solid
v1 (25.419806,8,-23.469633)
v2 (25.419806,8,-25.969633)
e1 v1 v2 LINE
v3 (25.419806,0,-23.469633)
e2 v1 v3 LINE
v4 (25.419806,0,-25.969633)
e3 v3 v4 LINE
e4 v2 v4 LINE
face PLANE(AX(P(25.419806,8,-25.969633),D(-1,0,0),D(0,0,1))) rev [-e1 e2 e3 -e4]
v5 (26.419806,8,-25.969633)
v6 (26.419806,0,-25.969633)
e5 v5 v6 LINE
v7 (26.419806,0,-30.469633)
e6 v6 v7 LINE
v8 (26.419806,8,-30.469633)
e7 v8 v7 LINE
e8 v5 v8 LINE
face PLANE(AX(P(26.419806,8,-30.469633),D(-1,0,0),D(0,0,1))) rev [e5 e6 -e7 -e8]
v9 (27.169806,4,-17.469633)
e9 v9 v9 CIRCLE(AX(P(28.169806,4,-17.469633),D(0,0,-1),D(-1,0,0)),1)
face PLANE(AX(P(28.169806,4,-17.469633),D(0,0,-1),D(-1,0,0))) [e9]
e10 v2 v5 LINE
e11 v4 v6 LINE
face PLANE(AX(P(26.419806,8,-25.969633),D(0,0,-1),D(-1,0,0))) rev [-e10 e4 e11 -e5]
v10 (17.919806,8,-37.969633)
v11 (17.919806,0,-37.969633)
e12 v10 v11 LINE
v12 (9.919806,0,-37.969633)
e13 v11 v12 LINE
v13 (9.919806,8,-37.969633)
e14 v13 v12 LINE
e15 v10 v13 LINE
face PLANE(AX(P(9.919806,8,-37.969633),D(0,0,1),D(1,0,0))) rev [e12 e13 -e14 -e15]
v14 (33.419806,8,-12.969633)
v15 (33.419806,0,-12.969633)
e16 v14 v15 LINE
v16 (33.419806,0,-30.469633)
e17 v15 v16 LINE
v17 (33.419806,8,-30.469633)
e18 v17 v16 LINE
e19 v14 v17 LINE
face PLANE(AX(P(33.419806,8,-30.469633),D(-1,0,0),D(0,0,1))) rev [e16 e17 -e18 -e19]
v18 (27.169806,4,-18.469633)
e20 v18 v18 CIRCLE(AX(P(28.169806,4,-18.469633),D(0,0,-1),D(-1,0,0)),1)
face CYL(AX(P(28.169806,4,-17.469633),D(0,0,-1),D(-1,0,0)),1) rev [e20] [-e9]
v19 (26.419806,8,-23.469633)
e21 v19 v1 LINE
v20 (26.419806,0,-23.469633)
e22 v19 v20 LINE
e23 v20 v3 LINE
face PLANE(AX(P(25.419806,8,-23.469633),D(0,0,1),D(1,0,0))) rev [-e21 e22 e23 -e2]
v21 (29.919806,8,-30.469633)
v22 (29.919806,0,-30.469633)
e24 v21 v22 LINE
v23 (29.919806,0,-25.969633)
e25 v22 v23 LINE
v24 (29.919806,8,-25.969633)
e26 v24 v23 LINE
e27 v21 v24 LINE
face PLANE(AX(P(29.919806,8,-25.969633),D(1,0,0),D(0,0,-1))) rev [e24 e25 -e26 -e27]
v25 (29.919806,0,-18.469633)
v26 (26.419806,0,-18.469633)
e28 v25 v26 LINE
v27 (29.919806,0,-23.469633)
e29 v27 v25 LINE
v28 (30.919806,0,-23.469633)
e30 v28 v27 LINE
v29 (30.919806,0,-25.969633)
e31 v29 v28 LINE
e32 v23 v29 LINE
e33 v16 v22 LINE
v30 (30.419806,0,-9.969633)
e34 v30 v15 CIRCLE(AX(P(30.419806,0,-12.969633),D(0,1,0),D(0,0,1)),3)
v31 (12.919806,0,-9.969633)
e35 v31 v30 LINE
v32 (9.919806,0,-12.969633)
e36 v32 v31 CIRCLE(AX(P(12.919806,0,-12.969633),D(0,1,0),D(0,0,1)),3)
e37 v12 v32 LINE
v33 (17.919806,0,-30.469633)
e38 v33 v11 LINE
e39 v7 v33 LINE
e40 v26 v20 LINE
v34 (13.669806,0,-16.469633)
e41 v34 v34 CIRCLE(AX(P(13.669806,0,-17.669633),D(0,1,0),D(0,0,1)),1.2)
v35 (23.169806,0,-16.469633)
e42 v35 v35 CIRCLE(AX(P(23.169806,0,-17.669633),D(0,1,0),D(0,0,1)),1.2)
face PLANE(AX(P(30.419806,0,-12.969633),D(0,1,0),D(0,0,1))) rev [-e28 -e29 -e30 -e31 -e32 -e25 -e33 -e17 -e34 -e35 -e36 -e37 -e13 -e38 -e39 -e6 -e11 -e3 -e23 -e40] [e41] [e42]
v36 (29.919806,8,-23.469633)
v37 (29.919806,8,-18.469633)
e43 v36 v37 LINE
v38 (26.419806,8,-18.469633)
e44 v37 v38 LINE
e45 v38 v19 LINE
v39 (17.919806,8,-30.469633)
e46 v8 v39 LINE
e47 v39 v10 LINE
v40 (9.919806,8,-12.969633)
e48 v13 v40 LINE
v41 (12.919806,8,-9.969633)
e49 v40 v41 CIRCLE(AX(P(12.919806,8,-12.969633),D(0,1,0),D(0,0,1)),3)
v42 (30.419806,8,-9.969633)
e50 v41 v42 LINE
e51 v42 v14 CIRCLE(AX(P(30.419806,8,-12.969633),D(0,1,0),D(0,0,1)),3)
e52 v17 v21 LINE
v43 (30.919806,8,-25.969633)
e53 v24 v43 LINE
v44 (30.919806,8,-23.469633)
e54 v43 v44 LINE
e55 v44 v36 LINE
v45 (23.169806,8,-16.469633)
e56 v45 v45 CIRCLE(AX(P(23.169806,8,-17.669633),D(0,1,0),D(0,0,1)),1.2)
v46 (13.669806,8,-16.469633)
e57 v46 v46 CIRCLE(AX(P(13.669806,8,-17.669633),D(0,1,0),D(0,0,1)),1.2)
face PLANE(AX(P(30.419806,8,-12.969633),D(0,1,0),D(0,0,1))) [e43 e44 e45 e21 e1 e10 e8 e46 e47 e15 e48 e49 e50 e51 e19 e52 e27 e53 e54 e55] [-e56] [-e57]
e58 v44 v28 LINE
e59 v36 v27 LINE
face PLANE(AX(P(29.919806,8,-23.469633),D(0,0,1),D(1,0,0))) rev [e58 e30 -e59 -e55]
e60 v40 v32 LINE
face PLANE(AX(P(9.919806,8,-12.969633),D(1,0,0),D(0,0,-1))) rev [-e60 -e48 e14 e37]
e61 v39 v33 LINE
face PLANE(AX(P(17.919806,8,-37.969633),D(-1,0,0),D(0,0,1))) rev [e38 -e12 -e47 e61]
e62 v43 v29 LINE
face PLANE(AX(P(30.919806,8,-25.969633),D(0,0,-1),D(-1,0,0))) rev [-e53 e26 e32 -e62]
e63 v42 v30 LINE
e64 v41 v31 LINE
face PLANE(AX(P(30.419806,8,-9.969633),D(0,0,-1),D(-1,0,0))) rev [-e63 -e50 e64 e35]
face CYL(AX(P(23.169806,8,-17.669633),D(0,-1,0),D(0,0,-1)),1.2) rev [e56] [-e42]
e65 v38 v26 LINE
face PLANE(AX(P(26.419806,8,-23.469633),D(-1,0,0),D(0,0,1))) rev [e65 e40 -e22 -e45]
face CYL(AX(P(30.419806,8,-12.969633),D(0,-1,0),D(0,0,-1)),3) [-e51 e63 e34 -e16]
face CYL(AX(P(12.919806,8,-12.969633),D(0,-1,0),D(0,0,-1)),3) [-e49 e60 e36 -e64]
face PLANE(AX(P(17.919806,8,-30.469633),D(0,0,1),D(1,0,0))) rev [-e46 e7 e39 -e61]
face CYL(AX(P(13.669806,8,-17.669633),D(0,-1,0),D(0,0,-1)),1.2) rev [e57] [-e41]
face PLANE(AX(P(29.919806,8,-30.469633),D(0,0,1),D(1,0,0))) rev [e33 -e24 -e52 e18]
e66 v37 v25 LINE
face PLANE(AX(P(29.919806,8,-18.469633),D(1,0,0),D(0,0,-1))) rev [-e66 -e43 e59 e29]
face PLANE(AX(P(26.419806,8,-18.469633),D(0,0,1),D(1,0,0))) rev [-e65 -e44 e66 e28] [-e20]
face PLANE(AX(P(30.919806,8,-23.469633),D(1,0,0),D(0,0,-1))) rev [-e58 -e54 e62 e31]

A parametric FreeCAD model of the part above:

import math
import FreeCAD as App
import Part
import Sketcher

V = App.Vector
Q = App.Units.Quantity

doc = App.newDocument("Part")
body = doc.addObject("PartDesign::Body", "Body")

# Sketch on XZ plane
sketch1 = doc.addObject("Sketcher::SketchObject", "Sketch")
body.addObject(sketch1)
sketch1.AttachmentSupport = (doc.XZ_Plane, [""])
sketch1.MapMode = "FlatFace"
sketch1.addGeometry([
    Part.LineSegment(V(26.419806, -25.969633, 0), V(26.419806, -30.469633, 0)),  # 0
    Part.LineSegment(V(26.419806, -30.469633, 0), V(17.919806, -30.469633, 0)),  # 1
    Part.LineSegment(V(17.919806, -30.469633, 0), V(17.919806, -37.969633, 0)),  # 2
    Part.LineSegment(V(17.919806, -37.969633, 0), V(9.919806, -37.969633, 0)),  # 3
    Part.LineSegment(V(9.919806, -37.969633, 0), V(9.919806, -12.969633, 0)),  # 4
    Part.ArcOfCircle(Part.Circle(V(12.919806, -12.969633, 0), V(0, 0, 1), 3), math.radians(90), math.radians(180)),  # 5
    Part.LineSegment(V(12.919806, -9.969633, 0), V(30.419806, -9.969633, 0)),  # 6
    Part.ArcOfCircle(Part.Circle(V(30.419806, -12.969633, 0), V(0, 0, 1), 3), math.radians(0), math.radians(90)),  # 7
    Part.LineSegment(V(33.419806, -12.969633, 0), V(33.419806, -30.469633, 0)),  # 8
    Part.LineSegment(V(33.419806, -30.469633, 0), V(29.919806, -30.469633, 0)),  # 9
    Part.LineSegment(V(29.919806, -30.469633, 0), V(29.919806, -25.969633, 0)),  # 10
    Part.LineSegment(V(29.919806, -25.969633, 0), V(30.919806, -25.969633, 0)),  # 11
    Part.LineSegment(V(30.919806, -25.969633, 0), V(30.919806, -23.469633, 0)),  # 12
    Part.LineSegment(V(30.919806, -23.469633, 0), V(29.919806, -23.469633, 0)),  # 13
    Part.LineSegment(V(29.919806, -23.469633, 0), V(29.919806, -18.469633, 0)),  # 14
    Part.LineSegment(V(29.919806, -18.469633, 0), V(26.419806, -18.469633, 0)),  # 15
    Part.LineSegment(V(26.419806, -18.469633, 0), V(26.419806, -23.469633, 0)),  # 16
    Part.LineSegment(V(26.419806, -23.469633, 0), V(25.419806, -23.469633, 0)),  # 17
    Part.LineSegment(V(25.419806, -23.469633, 0), V(25.419806, -25.969633, 0)),  # 18
    Part.LineSegment(V(25.419806, -25.969633, 0), V(26.419806, -25.969633, 0)),  # 19
    Part.Circle(V(23.169806, -17.669633, 0), V(0, 0, 1), 1.2),  # 20
    Part.Circle(V(13.669806, -17.669633, 0), V(0, 0, 1), 1.2),  # 21
], False)
sketch1.addConstraint([
    Sketcher.Constraint("Coincident", 0, 2, 1, 1),
    Sketcher.Constraint("Coincident", 1, 2, 2, 1),
    Sketcher.Constraint("Coincident", 2, 2, 3, 1),
    Sketcher.Constraint("Coincident", 3, 2, 4, 1),
    Sketcher.Constraint("Tangent", 4, 2, 5, 2),
    Sketcher.Constraint("Tangent", 5, 1, 6, 1),
    Sketcher.Constraint("Tangent", 6, 2, 7, 2),
    Sketcher.Constraint("Tangent", 7, 1, 8, 1),
    Sketcher.Constraint("Coincident", 8, 2, 9, 1),
    Sketcher.Constraint("Coincident", 9, 2, 10, 1),
    Sketcher.Constraint("Coincident", 10, 2, 11, 1),
    Sketcher.Constraint("Coincident", 11, 2, 12, 1),
    Sketcher.Constraint("Coincident", 12, 2, 13, 1),
    Sketcher.Constraint("Coincident", 13, 2, 14, 1),
    Sketcher.Constraint("Coincident", 14, 2, 15, 1),
    Sketcher.Constraint("Coincident", 15, 2, 16, 1),
    Sketcher.Constraint("Coincident", 16, 2, 17, 1),
    Sketcher.Constraint("Coincident", 17, 2, 18, 1),
    Sketcher.Constraint("Coincident", 18, 2, 19, 1),
    Sketcher.Constraint("Coincident", 19, 2, 0, 1),
    Sketcher.Constraint("Vertical", 0),
    Sketcher.Constraint("Horizontal", 1),
    Sketcher.Constraint("Vertical", 2),
    Sketcher.Constraint("Horizontal", 3),
    Sketcher.Constraint("Vertical", 4),
    Sketcher.Constraint("Horizontal", 6),
    Sketcher.Constraint("Vertical", 8),
    Sketcher.Constraint("Horizontal", 9),
    Sketcher.Constraint("Vertical", 10),
    Sketcher.Constraint("Horizontal", 11),
    Sketcher.Constraint("Vertical", 12),
    Sketcher.Constraint("Horizontal", 13),
    Sketcher.Constraint("Vertical", 14),
    Sketcher.Constraint("Horizontal", 15),
    Sketcher.Constraint("Vertical", 16),
    Sketcher.Constraint("Horizontal", 17),
    Sketcher.Constraint("Vertical", 18),
    Sketcher.Constraint("Horizontal", 19),
    Sketcher.Constraint("Equal", 5, 7),
    Sketcher.Constraint("Equal", 20, 21),
    Sketcher.Constraint("Horizontal", 20, 3, 21, 3),
    Sketcher.Constraint("Horizontal", 1, 2, 8, 2),
    Sketcher.Constraint("Horizontal", 13, 2, 16, 2),
    Sketcher.Constraint("Horizontal", 11, 2, 18, 2),
    Sketcher.Constraint("Vertical", 10, 2, 13, 2),
    Sketcher.Constraint("Vertical", 0, 2, 15, 2),
    Sketcher.Constraint("Equal", 9, 15),
    Sketcher.Constraint("Equal", 13, 17),
    Sketcher.Constraint("Equal", 6, 8),
    Sketcher.Constraint("Radius", 5, Q("3 mm")),
    Sketcher.Constraint("Diameter", 20, Q("2.4 mm")),
    Sketcher.Constraint("DistanceX", 3, 2, 3, 1, Q("8 mm")),
    Sketcher.Constraint("DistanceX", 11, 1, 11, 2, Q("1 mm")),
    Sketcher.Constraint("DistanceY", 4, 1, 4, 2, Q("25 mm")),
    Sketcher.Constraint("DistanceY", 14, 1, 14, 2, Q("5 mm")),
    Sketcher.Constraint("DistanceX", 1, 2, 1, 1, Q("8.5 mm")),
    Sketcher.Constraint("DistanceX", 6, 1, 6, 2, Q("17.5 mm")),
    Sketcher.Constraint("DistanceY", 0, 2, 0, 1, Q("4.5 mm")),
    Sketcher.Constraint("DistanceY", 12, 1, 12, 2, Q("2.5 mm")),
    Sketcher.Constraint("DistanceY", 20, 3, 7, 3, Q("4.7 mm")),
    Sketcher.Constraint("DistanceX", 21, 3, 20, 3, Q("9.5 mm")),
    Sketcher.Constraint("DistanceX", 20, 3, 7, 3, Q("7.25 mm")),
    Sketcher.Constraint("DistanceX", -1, 1, 5, 3, Q("12.919806 mm")),
    Sketcher.Constraint("DistanceY", 5, 3, -1, 1, Q("12.969633 mm")),
])
pad1 = doc.addObject("PartDesign::Pad", "Pad")
body.addObject(pad1)
pad1.Profile = sketch1
pad1.Length = 8
pad1.Reversed = True

# Sketch on XY plane
sketch2 = doc.addObject("Sketcher::SketchObject", "Sketch001")
body.addObject(sketch2)
sketch2.AttachmentSupport = (doc.XY_Plane, [""])
sketch2.MapMode = "FlatFace"
sketch2.AttachmentOffset = App.Placement(V(0, 0, -18.469633), App.Rotation())
sketch2.addGeometry(Part.Circle(V(28.169806, 4, 0), V(0, 0, 1), 1), False)
sketch2.addConstraint([
    Sketcher.Constraint("Diameter", 0, Q("2 mm")),
    Sketcher.Constraint("DistanceY", -1, 1, 0, 3, Q("4 mm")),
    Sketcher.Constraint("DistanceX", -1, 1, 0, 3, Q("28.169806 mm")),
])
pocket1 = doc.addObject("PartDesign::Pocket", "Pocket")
body.addObject(pocket1)
pocket1.Profile = sketch2
pocket1.Length = 1
pocket1.Reversed = True

doc.recompute()
